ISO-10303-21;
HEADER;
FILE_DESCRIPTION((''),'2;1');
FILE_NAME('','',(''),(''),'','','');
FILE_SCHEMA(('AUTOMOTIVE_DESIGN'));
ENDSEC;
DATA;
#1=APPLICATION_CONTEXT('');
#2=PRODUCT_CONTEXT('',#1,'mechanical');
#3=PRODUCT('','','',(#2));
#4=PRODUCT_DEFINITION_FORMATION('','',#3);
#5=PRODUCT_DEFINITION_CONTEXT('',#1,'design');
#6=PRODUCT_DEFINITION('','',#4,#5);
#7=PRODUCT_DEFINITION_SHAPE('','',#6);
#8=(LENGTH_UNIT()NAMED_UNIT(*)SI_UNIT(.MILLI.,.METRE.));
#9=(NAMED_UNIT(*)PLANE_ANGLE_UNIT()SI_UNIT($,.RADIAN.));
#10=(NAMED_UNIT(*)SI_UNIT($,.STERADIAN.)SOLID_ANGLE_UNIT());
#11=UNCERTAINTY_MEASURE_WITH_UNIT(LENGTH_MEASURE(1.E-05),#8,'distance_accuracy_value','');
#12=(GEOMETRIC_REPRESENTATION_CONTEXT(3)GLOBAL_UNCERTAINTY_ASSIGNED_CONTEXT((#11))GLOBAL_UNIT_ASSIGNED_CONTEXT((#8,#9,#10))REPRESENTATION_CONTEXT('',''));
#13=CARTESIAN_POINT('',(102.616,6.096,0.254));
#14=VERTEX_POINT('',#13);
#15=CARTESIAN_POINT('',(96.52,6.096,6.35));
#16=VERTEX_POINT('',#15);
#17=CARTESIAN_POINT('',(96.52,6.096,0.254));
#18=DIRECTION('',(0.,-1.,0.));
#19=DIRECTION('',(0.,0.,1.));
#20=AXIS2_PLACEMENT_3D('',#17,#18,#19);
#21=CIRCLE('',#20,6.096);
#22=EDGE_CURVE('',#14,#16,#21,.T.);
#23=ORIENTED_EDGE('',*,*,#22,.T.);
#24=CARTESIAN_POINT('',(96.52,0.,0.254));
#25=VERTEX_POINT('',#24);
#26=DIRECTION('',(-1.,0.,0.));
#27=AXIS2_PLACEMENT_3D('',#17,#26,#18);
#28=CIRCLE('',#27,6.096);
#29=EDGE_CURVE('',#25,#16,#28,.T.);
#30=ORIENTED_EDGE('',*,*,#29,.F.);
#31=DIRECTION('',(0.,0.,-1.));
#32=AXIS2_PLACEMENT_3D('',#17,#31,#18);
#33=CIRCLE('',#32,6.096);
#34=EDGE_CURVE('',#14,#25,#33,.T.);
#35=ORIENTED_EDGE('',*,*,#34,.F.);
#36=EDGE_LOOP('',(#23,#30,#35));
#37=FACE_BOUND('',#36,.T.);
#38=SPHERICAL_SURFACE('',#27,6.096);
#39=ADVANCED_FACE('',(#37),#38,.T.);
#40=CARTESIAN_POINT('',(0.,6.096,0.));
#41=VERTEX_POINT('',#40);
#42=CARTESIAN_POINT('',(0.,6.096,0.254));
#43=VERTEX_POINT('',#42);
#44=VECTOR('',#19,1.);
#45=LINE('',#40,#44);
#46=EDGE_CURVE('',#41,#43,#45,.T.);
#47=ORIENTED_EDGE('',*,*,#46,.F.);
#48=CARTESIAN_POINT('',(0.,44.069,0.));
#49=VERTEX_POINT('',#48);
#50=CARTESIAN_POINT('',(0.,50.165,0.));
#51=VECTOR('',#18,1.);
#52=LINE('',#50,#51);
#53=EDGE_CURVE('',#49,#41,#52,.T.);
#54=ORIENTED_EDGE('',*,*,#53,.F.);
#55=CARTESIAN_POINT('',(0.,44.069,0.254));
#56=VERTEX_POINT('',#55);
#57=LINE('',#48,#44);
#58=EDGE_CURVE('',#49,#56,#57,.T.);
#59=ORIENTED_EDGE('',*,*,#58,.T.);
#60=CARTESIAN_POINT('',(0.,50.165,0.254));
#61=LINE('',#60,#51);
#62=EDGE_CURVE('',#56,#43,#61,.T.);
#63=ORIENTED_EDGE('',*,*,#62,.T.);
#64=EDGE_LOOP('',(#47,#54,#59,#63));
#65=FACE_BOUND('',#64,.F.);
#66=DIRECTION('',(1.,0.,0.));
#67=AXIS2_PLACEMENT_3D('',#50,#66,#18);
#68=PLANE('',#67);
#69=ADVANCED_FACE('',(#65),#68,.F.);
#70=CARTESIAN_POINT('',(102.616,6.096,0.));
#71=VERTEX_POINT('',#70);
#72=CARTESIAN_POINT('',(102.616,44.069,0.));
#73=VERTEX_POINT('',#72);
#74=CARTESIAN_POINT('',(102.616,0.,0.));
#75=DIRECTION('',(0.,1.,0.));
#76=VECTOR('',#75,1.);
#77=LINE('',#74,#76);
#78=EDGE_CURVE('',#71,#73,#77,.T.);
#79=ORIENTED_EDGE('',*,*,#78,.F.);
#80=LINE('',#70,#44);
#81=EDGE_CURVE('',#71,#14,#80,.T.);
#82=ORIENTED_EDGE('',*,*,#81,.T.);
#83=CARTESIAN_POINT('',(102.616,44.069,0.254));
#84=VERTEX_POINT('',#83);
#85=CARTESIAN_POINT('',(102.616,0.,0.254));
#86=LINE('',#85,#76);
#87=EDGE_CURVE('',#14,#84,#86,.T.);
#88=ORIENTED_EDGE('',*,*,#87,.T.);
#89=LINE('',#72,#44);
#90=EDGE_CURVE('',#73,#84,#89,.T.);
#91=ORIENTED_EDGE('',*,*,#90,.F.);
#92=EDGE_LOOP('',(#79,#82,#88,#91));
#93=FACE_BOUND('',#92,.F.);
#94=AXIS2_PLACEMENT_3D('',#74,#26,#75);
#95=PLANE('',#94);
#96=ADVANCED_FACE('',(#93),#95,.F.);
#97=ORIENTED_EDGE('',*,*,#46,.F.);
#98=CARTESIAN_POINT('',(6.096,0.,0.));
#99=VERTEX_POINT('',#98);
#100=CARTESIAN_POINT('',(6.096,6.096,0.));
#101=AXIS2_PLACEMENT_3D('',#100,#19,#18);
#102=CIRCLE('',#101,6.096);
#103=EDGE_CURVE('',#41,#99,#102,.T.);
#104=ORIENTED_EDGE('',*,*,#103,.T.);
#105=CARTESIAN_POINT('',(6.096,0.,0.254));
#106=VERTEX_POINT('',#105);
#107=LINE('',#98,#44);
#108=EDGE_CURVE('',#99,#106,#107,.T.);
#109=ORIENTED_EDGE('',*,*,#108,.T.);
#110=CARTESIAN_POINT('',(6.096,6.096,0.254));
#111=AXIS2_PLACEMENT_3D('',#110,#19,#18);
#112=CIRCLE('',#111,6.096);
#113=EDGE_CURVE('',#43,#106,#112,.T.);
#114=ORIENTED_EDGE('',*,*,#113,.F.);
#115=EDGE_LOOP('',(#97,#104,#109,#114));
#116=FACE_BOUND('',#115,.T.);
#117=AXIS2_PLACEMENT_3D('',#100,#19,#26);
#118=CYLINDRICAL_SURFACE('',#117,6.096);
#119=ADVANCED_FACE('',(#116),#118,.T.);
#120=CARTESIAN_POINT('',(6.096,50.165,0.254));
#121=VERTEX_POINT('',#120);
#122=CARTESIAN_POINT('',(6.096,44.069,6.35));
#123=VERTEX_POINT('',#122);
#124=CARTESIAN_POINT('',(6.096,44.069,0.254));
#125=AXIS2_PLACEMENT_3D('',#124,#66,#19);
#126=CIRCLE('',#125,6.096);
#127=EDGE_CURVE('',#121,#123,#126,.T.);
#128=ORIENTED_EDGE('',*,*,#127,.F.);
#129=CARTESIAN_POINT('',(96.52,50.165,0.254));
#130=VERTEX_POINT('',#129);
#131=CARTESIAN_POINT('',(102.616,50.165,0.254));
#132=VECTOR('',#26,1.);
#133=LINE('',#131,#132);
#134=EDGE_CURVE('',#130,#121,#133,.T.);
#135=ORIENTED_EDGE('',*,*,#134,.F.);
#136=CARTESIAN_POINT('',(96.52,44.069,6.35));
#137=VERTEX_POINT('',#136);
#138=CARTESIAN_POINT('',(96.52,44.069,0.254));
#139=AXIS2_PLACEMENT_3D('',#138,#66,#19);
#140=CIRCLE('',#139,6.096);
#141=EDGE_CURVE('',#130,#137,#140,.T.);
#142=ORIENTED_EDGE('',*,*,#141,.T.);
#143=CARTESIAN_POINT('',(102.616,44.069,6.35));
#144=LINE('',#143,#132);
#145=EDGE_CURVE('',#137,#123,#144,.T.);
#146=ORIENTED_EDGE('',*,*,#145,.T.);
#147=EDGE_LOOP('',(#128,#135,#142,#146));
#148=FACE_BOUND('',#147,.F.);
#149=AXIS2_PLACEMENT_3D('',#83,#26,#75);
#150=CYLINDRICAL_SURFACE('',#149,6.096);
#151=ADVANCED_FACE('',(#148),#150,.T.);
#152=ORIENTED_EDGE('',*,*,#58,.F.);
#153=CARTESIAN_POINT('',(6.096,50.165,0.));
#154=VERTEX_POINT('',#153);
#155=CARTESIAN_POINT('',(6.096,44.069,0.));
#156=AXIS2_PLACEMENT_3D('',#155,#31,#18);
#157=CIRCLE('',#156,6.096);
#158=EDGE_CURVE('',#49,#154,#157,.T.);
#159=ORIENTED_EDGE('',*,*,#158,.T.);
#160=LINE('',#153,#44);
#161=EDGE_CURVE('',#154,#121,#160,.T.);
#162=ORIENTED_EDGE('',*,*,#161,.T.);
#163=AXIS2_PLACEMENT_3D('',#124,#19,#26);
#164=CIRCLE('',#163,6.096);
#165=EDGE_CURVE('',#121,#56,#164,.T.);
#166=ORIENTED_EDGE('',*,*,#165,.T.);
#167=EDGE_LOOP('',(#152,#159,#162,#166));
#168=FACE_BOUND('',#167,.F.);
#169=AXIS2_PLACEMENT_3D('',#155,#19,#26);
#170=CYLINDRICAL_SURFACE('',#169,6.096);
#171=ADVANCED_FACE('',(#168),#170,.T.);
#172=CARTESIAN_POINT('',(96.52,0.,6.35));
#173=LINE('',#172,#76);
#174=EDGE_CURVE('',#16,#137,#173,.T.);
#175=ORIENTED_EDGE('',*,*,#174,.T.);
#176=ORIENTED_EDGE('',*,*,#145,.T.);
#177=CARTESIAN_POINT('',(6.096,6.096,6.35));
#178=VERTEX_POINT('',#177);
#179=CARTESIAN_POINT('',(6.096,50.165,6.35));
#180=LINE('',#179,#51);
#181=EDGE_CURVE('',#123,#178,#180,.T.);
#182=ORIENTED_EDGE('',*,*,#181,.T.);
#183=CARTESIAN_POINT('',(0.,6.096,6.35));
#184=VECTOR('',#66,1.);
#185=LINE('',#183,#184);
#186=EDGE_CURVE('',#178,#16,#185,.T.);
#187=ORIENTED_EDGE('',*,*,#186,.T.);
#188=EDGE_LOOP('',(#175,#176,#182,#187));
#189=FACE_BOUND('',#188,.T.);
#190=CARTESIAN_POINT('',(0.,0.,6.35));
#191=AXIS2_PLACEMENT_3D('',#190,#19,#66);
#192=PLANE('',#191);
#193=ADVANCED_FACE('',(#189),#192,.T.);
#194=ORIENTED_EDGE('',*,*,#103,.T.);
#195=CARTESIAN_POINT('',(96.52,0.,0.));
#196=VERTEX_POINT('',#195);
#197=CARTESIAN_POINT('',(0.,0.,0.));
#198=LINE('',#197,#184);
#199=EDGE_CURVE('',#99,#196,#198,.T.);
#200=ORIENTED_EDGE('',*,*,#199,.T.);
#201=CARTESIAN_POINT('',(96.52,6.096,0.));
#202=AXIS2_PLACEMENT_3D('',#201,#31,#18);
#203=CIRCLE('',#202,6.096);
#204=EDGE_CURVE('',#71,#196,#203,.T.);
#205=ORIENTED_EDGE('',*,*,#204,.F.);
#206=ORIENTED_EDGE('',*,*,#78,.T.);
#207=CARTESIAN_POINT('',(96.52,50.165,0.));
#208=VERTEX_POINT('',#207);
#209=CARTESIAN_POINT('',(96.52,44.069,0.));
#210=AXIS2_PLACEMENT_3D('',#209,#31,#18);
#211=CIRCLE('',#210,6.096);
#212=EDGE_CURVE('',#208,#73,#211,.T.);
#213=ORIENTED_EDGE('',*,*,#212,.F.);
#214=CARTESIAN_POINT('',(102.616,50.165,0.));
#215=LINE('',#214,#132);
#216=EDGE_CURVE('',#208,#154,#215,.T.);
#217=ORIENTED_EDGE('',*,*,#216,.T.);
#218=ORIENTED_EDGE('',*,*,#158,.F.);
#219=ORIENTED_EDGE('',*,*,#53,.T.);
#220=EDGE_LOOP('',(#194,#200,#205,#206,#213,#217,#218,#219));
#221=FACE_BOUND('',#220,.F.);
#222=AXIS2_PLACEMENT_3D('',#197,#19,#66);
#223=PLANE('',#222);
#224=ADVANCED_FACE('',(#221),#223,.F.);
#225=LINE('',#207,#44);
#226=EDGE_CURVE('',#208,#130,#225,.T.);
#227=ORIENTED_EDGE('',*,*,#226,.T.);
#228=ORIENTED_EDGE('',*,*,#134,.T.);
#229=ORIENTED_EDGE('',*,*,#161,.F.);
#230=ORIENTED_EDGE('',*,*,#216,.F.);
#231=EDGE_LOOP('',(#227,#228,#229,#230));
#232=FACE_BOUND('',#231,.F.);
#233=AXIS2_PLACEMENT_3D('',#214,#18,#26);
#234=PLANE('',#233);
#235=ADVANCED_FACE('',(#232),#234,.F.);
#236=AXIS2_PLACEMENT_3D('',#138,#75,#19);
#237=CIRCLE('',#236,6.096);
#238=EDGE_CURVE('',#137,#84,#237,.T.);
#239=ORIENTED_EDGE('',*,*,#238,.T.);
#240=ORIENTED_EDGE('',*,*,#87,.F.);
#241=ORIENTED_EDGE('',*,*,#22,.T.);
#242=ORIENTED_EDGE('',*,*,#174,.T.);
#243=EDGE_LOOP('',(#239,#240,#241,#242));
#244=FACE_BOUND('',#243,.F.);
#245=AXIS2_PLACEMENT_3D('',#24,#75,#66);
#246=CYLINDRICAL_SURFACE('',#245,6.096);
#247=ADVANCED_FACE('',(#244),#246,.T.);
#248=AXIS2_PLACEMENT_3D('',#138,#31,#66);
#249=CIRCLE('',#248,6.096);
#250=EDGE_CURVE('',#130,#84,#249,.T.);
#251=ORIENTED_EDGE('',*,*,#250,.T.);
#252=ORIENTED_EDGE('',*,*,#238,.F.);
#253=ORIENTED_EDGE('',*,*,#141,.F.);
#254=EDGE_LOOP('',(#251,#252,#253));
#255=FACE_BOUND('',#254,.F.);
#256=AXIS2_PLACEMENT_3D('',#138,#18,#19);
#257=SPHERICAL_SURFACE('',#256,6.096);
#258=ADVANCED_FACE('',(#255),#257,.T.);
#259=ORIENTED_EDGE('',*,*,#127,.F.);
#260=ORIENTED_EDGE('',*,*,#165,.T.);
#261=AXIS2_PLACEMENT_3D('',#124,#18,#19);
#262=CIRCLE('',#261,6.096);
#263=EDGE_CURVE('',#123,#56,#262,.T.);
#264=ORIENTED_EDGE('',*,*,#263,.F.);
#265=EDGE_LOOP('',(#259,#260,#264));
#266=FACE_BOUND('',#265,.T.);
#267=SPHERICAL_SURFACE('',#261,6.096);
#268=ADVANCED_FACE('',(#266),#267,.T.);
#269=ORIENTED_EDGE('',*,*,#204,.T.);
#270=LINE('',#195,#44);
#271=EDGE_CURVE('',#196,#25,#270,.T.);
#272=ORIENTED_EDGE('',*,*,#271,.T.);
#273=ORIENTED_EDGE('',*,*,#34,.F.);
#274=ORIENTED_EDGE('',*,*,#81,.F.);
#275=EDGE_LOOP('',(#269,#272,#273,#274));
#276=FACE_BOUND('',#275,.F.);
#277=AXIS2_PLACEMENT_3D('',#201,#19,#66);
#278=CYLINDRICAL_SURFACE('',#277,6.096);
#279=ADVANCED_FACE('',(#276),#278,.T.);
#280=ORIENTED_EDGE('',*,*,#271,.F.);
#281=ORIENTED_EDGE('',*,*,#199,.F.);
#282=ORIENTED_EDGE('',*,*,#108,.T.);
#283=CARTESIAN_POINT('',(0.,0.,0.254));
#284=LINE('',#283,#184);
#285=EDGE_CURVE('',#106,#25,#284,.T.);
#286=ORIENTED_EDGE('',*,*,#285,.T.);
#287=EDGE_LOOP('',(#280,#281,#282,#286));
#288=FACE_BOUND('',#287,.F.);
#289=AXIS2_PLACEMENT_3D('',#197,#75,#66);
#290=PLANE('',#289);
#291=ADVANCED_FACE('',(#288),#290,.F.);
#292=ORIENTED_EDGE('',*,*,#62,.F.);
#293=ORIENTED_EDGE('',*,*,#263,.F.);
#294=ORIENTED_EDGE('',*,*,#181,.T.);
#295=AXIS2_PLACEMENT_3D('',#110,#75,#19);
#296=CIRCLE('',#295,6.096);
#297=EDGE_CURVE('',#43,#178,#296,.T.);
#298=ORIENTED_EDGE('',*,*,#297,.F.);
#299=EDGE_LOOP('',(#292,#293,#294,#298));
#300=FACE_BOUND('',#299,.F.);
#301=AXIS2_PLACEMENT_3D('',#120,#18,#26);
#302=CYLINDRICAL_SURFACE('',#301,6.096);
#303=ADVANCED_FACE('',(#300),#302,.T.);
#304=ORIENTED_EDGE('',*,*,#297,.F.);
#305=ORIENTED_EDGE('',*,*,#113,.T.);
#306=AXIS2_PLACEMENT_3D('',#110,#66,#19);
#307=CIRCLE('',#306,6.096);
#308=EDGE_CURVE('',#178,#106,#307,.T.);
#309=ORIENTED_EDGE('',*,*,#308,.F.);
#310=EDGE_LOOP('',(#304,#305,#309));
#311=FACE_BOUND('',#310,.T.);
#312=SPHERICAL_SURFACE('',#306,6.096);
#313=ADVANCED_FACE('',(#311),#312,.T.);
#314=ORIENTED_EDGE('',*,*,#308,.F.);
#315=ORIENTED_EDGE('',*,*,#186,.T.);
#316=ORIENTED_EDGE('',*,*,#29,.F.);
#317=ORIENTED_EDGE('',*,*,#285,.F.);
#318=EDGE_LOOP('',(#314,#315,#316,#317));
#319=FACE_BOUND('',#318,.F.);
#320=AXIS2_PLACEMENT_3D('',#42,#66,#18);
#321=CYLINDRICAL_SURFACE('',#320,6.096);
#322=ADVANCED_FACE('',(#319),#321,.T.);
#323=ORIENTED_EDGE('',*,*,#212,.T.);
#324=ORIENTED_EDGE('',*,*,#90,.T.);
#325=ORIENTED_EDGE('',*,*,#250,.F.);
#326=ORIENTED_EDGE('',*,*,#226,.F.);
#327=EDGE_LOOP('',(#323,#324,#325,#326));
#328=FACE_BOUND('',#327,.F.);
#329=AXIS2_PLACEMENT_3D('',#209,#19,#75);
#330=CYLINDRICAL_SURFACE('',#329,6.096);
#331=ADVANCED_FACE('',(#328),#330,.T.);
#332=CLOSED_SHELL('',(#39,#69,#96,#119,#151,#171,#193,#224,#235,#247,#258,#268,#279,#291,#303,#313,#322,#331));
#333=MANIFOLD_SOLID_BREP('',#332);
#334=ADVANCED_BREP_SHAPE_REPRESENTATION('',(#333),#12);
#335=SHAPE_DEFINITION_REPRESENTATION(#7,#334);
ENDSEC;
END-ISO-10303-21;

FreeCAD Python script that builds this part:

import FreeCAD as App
import Part
import Sketcher
from FreeCAD import Vector
Q = App.Units.Quantity


def edges_at(feature, points):
    """Names of the edges that pass closest to the given points."""
    edges = feature.Shape.Edges
    near = lambda p: min(range(len(edges)), key=lambda i: edges[i].distToShape(Part.Vertex(*p))[0])
    return sorted({f"Edge{near(p) + 1}" for p in points})


def add_polygon(sketch, points):
    """Adds a closed chain of lines whose ends are joined by coincident constraints."""
    first, n = sketch.GeometryCount, len(points)
    for a, b in zip(points, points[1:] + points[:1]):
        sketch.addGeometry(Part.LineSegment(App.Vector(*a, 0), App.Vector(*b, 0)), False)
    for i in range(n):
        sketch.addConstraint(Sketcher.Constraint("Coincident", first + i, 2, first + (i + 1) % n, 1))

doc = App.newDocument("Part")
params = doc.addObject("Spreadsheet::Sheet", "Params")
for row, (alias, value) in enumerate([
    ("sketch1_width", "4.04 in"),
    ("sketch1_height", "1.975 in"),
    ("pad1_length", "0.25 in"),
    ("fillet_radius", "0.24 in"),
], start=1):
    params.set(f"A{row}", alias)
    params.set(f"B{row}", "=" + value)
    params.setAlias(f"B{row}", alias)

body = doc.addObject("PartDesign::Body", "Body")

sketch1 = doc.addObject("Sketcher::SketchObject", "Sketch")
body.addObject(sketch1)
sketch1.AttachmentSupport = (doc.XY_Plane, [""])
sketch1.MapMode = "FlatFace"
add_polygon(sketch1, [(0, 50), (0, 0), (103, 0), (103, 50)])
sketch1.addConstraint([
    Sketcher.Constraint("Vertical", 0),
    Sketcher.Constraint("Horizontal", 1),
    Sketcher.Constraint("Vertical", 2),
    Sketcher.Constraint("Horizontal", 3),
    Sketcher.Constraint("Coincident", 0, 2, -1, 1),
    Sketcher.Constraint("DistanceX", 1, 1, 1, 2, Q("4.04 in")),
    Sketcher.Constraint("DistanceY", 0, 2, 0, 1, Q("1.975 in")),
])
sketch1.setExpression("Constraints[9]", "Params.sketch1_width")
sketch1.setExpression("Constraints[10]", "Params.sketch1_height")
pad1 = doc.addObject("PartDesign::Pad", "Pad")
body.addObject(pad1)
pad1.Profile = sketch1
pad1.setExpression("Length", "Params.pad1_length")
doc.recompute()

fillet = doc.addObject("PartDesign::Fillet", "Fillet")
body.addObject(fillet)
fillet.Base = (pad1, edges_at(pad1, [
    (51.308, 0, 6.35),
    (0, 25.082, 6.35),
    (0, 0, 3.175),
    (102.616, 0, 3.175),
    (102.616, 25.082, 6.35),
    (51.308, 50.165, 6.35),
    (102.616, 50.165, 3.175),
    (0, 50.165, 3.175),
]))
fillet.setExpression("Radius", "Params.fillet_radius")

doc.recompute()
